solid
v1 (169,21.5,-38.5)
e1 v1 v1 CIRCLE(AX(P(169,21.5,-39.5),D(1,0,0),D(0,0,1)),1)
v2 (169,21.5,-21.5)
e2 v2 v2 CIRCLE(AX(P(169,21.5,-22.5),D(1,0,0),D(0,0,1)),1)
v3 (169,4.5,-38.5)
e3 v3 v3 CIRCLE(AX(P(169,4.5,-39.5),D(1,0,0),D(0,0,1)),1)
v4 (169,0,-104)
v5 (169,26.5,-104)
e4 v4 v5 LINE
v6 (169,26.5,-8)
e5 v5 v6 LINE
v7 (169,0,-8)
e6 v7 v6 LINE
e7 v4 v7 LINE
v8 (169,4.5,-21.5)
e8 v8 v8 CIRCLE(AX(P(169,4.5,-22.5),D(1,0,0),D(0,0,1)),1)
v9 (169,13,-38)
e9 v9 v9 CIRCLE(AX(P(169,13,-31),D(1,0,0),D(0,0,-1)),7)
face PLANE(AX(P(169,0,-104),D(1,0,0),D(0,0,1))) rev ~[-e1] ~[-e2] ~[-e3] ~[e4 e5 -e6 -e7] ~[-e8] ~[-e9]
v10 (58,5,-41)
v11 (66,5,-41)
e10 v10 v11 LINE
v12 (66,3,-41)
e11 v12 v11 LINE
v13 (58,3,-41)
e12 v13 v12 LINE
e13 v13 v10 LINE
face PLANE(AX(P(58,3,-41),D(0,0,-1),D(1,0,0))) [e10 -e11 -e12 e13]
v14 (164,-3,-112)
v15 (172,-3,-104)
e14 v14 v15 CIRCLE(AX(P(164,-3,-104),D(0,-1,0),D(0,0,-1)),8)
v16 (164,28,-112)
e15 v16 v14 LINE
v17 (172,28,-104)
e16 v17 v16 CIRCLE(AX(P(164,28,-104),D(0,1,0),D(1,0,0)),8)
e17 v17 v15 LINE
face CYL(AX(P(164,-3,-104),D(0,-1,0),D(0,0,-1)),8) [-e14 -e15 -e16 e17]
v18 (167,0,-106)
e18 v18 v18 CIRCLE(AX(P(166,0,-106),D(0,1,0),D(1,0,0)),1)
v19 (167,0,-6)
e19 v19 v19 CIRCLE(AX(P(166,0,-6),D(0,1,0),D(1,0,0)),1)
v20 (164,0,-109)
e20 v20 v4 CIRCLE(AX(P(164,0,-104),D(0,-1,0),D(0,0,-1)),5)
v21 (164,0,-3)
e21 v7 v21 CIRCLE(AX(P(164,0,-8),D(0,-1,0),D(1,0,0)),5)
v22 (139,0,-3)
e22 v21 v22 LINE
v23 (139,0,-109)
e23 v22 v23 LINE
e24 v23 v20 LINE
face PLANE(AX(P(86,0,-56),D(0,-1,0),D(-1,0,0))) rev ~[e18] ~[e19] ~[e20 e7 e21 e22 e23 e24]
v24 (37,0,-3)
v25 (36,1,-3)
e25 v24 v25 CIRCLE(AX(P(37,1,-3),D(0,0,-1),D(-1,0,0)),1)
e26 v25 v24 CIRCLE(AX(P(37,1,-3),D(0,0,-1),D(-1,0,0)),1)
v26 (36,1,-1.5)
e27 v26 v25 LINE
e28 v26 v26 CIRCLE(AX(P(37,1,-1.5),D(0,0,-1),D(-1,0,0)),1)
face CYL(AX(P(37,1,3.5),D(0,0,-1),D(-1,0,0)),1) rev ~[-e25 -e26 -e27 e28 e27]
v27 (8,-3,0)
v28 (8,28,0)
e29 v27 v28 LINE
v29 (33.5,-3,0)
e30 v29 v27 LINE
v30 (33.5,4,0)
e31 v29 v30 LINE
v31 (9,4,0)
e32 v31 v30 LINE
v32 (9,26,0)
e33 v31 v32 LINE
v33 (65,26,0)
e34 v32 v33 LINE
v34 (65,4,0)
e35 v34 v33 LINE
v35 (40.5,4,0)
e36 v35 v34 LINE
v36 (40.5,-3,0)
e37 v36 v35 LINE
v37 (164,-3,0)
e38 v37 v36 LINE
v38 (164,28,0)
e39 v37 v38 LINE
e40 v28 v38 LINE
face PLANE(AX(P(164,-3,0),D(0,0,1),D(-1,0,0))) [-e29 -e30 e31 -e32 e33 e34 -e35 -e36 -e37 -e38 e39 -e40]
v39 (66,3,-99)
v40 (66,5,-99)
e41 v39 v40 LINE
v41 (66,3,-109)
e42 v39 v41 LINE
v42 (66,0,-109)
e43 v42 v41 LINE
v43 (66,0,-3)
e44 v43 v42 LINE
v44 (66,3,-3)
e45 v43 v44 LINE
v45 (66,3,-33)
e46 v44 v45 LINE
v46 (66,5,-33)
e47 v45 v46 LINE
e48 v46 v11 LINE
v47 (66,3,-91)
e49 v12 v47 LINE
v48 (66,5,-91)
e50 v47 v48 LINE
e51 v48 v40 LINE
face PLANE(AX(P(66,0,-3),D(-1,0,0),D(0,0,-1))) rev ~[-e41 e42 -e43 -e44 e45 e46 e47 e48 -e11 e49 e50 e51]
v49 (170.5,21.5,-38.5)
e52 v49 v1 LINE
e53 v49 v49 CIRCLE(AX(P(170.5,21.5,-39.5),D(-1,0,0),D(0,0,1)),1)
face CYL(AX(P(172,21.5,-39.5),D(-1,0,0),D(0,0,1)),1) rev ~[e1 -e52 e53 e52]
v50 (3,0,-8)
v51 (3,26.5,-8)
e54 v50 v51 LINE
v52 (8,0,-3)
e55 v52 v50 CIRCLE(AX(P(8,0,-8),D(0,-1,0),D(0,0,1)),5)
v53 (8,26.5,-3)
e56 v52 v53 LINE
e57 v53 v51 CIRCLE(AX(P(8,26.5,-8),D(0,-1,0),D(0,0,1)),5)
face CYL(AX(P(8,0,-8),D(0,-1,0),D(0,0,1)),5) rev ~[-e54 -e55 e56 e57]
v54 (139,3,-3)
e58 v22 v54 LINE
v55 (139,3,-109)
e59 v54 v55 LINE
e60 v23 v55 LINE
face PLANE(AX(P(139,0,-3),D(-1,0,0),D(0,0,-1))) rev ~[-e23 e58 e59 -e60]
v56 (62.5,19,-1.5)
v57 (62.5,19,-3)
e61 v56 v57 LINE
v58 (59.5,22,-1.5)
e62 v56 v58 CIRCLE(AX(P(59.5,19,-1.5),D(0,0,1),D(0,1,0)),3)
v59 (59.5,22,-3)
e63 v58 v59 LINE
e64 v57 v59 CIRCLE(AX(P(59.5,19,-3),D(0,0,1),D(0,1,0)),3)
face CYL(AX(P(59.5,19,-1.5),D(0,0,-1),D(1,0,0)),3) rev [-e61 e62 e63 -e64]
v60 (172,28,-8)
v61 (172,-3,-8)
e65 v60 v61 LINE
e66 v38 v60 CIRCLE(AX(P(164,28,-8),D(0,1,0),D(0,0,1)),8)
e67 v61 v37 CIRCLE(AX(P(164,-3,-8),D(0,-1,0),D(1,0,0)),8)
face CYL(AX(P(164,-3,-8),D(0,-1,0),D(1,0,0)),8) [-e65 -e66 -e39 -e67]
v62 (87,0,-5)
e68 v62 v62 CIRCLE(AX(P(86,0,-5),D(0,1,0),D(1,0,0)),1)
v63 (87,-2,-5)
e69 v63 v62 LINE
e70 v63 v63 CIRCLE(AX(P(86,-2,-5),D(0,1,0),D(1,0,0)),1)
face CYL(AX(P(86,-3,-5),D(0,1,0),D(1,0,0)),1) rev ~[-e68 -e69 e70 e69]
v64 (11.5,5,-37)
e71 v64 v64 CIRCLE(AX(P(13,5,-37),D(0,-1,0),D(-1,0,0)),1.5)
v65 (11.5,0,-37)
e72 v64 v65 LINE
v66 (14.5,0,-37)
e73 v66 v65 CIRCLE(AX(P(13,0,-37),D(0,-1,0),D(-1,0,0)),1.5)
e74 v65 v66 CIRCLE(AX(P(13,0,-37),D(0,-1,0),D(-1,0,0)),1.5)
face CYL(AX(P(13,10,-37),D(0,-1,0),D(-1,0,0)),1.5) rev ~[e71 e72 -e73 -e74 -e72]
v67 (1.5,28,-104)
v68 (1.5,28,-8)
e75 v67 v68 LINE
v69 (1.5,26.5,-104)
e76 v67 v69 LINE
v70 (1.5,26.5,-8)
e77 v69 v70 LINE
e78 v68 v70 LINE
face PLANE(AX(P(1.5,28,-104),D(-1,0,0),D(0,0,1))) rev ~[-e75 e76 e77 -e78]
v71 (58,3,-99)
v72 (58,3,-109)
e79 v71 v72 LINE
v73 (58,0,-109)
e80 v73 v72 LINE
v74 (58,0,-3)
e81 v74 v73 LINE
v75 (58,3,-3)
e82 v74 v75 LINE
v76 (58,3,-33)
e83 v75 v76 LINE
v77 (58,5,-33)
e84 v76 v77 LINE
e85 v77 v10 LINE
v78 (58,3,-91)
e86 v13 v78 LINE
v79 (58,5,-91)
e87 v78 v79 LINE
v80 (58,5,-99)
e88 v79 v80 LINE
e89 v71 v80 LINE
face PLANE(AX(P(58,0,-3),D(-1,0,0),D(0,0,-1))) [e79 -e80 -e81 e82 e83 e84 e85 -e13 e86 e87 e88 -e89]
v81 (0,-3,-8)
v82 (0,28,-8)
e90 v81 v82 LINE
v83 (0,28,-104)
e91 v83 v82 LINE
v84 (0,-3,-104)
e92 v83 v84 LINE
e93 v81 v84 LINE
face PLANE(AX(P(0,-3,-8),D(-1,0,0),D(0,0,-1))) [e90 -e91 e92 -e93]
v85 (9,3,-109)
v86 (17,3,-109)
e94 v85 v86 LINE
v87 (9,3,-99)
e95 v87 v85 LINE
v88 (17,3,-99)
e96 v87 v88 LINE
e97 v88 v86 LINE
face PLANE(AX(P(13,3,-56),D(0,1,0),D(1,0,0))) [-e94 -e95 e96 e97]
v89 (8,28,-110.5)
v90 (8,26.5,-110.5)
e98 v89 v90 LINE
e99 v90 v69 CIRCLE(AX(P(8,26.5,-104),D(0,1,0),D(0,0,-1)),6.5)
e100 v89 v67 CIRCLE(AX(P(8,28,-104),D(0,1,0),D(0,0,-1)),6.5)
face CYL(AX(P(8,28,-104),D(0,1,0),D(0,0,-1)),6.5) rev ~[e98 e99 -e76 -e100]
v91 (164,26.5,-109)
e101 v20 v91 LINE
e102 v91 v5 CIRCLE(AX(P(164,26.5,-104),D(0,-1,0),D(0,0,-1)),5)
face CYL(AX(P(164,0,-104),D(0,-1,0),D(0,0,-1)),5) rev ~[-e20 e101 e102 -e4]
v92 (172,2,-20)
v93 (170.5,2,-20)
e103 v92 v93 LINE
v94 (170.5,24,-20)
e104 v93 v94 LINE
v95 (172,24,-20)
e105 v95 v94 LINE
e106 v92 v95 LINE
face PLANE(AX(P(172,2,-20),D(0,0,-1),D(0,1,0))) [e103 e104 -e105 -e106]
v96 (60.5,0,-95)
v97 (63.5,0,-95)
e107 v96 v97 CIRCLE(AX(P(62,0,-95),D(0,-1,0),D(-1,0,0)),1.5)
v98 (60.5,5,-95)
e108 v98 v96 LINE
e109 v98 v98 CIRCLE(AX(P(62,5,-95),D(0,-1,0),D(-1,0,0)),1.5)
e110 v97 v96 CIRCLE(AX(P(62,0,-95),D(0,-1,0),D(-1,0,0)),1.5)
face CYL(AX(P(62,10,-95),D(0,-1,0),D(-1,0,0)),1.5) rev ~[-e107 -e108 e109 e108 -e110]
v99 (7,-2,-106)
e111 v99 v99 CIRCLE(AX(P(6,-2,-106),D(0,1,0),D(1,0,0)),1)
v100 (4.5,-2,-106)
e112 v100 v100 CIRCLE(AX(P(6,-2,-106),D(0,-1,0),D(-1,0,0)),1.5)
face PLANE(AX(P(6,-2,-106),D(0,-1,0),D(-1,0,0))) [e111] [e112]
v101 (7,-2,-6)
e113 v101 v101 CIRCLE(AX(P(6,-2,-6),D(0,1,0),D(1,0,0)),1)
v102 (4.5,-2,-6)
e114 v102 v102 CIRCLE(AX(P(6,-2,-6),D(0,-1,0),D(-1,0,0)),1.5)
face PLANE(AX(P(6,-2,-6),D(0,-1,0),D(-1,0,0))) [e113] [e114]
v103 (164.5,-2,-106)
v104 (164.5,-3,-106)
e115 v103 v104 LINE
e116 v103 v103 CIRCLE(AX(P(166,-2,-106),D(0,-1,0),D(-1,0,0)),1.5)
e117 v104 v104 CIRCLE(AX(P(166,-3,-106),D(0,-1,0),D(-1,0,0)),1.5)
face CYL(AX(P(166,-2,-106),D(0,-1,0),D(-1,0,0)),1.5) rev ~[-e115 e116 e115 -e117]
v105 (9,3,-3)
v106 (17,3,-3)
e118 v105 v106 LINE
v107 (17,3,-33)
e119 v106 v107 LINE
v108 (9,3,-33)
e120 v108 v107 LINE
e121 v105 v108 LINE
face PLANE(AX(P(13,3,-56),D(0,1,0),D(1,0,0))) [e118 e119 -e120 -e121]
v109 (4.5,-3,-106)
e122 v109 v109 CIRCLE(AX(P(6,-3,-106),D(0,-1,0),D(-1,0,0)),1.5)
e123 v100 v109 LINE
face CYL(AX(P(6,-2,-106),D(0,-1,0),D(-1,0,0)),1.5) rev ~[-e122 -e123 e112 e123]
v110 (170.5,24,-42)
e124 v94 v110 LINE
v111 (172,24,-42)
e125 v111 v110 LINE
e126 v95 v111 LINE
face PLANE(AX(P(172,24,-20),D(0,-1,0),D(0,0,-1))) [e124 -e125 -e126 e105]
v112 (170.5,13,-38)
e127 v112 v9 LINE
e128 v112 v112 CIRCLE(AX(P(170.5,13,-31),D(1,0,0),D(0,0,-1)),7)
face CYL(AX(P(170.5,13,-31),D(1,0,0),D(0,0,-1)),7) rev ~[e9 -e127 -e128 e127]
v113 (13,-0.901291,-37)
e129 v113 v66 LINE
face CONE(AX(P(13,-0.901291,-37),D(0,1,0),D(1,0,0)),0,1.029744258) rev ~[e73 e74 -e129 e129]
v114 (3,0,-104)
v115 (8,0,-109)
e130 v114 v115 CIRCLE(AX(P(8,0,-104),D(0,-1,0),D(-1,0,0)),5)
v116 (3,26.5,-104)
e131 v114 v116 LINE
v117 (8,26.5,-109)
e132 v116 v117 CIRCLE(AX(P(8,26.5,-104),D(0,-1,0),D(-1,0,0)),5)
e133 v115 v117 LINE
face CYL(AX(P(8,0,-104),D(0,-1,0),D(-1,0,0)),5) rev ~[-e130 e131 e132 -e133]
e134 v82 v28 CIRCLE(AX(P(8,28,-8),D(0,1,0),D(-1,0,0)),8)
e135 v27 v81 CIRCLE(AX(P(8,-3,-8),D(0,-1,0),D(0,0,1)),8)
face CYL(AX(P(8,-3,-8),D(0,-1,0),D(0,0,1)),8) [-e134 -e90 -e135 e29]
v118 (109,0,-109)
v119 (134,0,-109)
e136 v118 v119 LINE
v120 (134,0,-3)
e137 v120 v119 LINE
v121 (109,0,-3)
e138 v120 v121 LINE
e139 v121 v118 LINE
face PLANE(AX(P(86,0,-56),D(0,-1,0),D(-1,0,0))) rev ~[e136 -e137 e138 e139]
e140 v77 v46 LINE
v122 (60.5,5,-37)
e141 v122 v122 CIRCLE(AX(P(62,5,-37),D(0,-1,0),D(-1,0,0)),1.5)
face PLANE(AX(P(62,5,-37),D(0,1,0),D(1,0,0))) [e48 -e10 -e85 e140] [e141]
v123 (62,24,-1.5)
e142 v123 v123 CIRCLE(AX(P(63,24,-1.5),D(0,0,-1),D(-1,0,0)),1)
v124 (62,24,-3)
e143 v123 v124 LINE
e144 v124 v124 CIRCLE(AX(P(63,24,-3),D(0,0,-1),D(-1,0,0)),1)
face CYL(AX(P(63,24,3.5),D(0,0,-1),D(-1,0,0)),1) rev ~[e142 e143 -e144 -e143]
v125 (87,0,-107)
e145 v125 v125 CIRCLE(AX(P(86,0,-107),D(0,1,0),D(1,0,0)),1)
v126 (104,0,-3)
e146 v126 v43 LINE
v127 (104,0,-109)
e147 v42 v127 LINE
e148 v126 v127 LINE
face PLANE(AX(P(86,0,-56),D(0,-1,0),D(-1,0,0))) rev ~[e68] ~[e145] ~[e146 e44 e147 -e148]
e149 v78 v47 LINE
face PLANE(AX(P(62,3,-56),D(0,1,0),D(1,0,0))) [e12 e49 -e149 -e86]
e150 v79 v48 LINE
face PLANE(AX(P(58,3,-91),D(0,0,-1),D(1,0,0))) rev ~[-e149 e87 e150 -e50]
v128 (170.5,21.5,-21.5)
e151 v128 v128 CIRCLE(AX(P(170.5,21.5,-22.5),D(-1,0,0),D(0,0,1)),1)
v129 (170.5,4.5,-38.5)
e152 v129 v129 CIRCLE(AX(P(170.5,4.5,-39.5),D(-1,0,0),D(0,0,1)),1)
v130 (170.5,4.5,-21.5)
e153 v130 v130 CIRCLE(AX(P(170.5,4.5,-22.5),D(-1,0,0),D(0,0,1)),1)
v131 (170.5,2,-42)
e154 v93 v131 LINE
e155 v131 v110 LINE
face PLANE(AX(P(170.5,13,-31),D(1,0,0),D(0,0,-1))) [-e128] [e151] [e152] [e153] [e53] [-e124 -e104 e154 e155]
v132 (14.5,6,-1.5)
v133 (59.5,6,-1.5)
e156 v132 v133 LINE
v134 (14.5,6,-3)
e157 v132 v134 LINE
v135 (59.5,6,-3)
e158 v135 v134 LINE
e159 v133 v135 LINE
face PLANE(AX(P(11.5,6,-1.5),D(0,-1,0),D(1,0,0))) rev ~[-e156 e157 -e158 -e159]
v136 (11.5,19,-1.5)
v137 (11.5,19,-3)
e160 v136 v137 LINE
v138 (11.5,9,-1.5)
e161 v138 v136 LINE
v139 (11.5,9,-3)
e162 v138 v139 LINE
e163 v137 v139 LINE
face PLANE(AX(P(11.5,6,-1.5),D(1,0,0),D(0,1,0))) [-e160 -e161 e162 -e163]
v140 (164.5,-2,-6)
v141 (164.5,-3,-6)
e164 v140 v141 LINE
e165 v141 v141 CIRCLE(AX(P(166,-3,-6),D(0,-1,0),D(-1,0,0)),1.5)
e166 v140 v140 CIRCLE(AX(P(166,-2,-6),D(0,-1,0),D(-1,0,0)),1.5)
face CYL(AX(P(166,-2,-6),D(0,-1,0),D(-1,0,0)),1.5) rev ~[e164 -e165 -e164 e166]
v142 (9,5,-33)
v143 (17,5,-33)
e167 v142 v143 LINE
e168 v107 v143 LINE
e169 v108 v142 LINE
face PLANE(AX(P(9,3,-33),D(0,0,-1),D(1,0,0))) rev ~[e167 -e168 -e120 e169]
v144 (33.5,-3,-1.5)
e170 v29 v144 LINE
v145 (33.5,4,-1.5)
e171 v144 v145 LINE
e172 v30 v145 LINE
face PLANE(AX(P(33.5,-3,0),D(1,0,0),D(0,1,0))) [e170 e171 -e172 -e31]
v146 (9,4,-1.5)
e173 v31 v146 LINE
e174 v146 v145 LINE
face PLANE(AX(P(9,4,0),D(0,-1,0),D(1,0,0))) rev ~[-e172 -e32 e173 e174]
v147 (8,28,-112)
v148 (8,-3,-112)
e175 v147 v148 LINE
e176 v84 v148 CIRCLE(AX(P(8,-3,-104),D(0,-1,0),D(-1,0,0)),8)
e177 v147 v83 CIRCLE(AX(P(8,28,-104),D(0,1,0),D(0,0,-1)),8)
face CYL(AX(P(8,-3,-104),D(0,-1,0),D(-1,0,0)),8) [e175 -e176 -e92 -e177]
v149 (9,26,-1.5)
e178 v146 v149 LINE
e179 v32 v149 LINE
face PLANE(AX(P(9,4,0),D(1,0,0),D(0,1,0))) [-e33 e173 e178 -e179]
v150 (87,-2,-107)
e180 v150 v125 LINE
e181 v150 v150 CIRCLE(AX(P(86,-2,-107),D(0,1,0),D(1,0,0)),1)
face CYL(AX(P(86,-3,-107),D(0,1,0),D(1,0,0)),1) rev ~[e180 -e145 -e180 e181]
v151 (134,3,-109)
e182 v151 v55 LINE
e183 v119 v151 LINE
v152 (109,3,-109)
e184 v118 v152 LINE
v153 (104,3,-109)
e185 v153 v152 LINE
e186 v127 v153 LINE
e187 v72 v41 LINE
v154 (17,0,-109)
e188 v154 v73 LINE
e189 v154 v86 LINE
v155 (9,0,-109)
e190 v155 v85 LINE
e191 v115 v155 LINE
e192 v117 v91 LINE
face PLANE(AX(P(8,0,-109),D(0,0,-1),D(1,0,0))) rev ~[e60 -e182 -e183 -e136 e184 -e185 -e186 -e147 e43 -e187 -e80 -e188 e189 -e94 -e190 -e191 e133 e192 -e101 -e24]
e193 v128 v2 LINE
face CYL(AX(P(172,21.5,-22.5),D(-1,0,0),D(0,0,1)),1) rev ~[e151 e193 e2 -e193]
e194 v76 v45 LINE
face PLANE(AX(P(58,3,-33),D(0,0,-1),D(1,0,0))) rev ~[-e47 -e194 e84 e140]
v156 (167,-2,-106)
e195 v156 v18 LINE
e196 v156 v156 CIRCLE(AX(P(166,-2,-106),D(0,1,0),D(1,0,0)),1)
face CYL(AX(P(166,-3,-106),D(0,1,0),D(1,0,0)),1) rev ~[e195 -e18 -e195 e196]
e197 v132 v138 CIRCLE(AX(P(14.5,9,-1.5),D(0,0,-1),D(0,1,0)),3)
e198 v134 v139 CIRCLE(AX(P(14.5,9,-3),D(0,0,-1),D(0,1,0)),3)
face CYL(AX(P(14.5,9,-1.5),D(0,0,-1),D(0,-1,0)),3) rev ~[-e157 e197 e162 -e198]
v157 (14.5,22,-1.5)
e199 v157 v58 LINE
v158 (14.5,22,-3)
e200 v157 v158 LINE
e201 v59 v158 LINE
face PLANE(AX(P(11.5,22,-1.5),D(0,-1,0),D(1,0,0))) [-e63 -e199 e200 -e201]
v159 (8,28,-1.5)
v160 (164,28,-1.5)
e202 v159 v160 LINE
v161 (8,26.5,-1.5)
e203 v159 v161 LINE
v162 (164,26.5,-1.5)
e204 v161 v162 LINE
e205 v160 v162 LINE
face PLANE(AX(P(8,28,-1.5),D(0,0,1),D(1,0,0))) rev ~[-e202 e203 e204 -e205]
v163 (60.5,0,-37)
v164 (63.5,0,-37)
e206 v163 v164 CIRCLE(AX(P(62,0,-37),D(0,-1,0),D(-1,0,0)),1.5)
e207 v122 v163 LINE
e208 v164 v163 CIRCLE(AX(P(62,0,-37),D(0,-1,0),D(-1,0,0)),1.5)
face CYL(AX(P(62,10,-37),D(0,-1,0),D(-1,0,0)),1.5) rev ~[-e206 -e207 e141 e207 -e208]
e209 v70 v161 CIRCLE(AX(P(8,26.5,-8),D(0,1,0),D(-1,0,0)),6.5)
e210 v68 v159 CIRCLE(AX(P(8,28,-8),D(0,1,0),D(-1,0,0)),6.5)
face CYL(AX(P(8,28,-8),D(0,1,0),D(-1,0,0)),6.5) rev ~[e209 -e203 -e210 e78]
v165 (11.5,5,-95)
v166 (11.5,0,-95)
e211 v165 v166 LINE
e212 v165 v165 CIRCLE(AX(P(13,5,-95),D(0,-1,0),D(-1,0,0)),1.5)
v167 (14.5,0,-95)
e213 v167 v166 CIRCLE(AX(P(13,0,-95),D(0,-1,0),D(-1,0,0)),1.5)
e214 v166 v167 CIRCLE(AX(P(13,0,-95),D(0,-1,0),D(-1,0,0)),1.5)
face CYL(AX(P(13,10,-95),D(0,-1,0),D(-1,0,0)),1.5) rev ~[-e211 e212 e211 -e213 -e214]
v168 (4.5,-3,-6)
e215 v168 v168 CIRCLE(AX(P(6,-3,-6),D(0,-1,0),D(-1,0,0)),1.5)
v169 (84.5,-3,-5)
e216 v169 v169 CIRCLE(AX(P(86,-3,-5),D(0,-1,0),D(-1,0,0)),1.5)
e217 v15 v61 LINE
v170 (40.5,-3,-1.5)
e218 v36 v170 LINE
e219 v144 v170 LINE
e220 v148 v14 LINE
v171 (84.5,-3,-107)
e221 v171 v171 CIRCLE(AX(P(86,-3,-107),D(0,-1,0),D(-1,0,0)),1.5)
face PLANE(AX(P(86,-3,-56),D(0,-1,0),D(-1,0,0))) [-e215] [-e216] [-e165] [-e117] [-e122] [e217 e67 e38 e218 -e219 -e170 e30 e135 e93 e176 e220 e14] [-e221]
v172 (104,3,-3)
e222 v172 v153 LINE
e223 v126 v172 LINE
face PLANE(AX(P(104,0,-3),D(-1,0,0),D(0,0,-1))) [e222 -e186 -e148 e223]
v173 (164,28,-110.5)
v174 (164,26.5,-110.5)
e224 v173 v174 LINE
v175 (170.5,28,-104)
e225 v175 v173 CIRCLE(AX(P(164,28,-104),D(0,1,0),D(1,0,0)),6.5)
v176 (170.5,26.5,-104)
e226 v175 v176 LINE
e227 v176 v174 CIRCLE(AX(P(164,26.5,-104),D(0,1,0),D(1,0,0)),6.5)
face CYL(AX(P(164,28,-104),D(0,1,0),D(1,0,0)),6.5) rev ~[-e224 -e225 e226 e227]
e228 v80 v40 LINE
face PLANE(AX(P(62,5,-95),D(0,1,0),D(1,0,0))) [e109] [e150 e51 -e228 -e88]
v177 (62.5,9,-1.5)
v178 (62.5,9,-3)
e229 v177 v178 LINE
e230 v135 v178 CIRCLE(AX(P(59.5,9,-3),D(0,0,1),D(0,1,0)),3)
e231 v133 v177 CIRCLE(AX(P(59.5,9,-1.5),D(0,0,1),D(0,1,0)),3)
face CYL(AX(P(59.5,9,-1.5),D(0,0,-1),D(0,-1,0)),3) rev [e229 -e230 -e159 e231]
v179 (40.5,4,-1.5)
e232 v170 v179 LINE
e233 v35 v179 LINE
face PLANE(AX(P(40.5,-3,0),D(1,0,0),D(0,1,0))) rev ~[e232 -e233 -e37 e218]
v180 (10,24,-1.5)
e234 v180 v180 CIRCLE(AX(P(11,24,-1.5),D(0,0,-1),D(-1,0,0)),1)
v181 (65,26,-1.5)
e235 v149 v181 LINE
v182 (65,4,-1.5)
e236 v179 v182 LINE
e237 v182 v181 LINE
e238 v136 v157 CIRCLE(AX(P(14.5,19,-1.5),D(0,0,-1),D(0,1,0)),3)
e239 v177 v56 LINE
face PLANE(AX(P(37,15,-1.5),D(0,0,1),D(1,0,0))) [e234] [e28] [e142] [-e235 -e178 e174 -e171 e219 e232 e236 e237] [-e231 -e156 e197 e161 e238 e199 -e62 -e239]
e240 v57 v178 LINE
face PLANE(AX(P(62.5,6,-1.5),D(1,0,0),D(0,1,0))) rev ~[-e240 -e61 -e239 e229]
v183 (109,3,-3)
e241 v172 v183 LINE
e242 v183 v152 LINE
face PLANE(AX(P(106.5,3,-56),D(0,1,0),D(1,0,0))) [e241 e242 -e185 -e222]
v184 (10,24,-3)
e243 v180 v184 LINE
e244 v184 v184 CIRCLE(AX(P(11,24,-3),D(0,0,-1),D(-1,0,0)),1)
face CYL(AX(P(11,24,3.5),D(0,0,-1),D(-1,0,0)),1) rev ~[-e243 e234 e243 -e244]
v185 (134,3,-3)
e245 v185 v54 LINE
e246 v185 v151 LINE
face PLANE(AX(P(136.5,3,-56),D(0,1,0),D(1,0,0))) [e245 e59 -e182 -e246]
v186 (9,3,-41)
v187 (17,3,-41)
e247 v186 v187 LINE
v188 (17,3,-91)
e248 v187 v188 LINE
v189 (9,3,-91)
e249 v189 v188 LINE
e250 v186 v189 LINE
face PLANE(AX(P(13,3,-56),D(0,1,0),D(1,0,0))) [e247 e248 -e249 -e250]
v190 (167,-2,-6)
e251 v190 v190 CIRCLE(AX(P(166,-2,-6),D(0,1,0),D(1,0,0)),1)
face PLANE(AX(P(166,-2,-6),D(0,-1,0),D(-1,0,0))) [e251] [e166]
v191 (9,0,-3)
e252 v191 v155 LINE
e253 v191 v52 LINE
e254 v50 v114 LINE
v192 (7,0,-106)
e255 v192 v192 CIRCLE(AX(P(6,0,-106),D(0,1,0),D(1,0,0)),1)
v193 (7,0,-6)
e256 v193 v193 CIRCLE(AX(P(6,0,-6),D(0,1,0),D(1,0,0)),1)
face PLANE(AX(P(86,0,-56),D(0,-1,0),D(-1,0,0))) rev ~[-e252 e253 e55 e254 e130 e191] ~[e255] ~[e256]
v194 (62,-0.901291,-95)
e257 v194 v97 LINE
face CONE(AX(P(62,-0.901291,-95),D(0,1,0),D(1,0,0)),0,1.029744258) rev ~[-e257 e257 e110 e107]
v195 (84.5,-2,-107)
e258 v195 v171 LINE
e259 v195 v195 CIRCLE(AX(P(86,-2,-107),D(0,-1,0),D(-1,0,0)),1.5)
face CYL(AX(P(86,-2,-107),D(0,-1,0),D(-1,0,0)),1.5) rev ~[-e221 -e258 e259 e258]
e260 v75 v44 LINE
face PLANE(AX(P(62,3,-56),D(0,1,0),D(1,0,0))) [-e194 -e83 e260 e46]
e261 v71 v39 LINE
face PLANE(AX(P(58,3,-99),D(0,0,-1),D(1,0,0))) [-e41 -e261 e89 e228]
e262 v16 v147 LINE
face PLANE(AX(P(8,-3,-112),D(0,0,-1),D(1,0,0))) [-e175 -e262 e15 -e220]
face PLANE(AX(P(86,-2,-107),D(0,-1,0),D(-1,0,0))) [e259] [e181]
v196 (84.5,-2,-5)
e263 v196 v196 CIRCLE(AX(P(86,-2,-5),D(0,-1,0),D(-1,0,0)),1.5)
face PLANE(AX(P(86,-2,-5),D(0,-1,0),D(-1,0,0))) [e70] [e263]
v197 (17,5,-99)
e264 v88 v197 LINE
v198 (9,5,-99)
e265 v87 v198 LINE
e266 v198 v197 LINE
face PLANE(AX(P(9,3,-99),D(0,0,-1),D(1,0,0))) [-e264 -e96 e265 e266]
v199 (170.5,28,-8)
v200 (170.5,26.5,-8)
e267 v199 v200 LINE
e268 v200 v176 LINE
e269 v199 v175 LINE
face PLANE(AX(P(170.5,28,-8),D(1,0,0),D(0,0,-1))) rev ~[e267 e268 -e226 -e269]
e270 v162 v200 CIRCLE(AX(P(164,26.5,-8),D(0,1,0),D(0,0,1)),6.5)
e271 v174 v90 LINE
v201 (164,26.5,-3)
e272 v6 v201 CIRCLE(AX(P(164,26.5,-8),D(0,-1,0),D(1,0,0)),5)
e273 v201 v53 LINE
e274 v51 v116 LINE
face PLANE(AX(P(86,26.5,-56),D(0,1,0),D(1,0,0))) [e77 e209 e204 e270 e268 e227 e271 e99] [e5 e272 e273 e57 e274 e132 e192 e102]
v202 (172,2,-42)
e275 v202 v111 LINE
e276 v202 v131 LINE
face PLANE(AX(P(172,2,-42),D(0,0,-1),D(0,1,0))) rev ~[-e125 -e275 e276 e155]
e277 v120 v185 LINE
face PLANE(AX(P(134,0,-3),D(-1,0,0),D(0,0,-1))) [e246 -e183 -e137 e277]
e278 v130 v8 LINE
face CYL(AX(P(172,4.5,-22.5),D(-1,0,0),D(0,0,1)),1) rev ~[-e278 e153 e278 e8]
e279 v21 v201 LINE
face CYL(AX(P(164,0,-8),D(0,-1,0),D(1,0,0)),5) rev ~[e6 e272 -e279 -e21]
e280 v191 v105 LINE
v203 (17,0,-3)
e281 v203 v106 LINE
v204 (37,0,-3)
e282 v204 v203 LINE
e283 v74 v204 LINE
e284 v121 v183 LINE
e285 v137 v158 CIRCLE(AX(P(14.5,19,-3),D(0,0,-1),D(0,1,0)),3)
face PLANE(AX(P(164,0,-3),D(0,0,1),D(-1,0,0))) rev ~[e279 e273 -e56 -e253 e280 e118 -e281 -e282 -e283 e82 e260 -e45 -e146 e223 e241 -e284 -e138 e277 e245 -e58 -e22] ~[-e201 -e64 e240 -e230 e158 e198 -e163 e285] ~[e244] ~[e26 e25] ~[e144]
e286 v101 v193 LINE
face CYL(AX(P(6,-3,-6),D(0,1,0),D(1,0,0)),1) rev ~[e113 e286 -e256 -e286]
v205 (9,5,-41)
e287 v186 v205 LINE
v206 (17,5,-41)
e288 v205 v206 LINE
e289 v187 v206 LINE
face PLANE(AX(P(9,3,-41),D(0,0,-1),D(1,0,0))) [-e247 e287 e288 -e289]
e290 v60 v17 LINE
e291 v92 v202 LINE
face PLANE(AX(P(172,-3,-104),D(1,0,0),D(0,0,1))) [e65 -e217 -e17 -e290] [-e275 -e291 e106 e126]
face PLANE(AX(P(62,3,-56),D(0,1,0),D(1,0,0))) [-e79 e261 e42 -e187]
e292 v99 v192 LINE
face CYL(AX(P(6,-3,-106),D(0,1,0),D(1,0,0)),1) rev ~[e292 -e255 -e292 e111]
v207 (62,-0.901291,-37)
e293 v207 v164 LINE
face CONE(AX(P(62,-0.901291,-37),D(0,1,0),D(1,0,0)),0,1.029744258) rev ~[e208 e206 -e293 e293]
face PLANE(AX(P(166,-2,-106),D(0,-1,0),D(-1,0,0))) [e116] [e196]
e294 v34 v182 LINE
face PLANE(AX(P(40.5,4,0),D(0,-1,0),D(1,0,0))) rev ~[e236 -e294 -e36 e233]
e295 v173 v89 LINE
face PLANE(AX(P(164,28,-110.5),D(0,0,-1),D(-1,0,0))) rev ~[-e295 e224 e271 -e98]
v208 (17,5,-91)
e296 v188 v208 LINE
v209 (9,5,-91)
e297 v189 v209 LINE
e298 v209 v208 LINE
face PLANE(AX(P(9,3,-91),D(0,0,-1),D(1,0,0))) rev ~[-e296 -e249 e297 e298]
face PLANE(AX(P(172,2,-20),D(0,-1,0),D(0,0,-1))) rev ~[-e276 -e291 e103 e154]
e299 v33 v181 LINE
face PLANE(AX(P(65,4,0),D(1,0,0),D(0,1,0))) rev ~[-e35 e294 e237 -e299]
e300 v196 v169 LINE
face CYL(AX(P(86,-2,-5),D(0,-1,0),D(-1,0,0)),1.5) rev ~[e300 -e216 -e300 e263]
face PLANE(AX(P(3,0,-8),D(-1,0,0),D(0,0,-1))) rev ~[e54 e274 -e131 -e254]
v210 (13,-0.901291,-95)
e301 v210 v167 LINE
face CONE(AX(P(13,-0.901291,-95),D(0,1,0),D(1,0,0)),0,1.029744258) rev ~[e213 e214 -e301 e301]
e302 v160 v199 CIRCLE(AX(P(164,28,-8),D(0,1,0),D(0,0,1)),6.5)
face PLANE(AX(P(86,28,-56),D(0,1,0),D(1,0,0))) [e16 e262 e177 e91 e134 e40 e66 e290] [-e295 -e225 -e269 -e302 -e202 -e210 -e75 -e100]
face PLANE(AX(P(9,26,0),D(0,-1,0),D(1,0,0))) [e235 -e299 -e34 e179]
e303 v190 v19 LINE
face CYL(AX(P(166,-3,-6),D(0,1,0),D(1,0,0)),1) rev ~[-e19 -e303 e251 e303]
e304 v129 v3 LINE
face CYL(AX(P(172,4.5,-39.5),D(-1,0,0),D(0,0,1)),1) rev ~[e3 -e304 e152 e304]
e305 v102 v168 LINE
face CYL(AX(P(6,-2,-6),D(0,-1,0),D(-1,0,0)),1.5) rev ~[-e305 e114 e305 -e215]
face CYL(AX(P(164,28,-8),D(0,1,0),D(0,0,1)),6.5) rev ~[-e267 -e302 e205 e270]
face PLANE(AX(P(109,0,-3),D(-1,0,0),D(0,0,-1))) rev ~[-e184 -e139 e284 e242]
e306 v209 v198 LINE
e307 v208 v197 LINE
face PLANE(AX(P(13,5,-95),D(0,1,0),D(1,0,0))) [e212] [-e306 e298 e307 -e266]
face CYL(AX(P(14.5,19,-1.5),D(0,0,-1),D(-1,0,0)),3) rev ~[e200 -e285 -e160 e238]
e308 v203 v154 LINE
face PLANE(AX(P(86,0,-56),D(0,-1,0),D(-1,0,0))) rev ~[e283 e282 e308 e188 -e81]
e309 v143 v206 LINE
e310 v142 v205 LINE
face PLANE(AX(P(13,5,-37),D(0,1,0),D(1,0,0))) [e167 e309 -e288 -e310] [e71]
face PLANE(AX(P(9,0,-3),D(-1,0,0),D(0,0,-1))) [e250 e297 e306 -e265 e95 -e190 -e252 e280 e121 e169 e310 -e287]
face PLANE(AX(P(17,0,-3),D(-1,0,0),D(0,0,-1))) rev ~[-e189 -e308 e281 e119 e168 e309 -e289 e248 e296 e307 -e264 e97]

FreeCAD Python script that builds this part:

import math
import FreeCAD as App
import Part
import Sketcher
Q = App.Units.Quantity


def edges_at(feature, points):
    """Names of the edges that pass closest to the given points."""
    edges = feature.Shape.Edges
    near = lambda p: min(range(len(edges)), key=lambda i: edges[i].distToShape(Part.Vertex(*p))[0])
    return sorted({f"Edge{near(p) + 1}" for p in points})


def add_polygon(sketch, points):
    """Adds a closed chain of lines whose ends are joined by coincident constraints."""
    first, n = sketch.GeometryCount, len(points)
    for a, b in zip(points, points[1:] + points[:1]):
        sketch.addGeometry(Part.LineSegment(App.Vector(*a, 0), App.Vector(*b, 0)), False)
    for i in range(n):
        sketch.addConstraint(Sketcher.Constraint("Coincident", first + i, 2, first + (i + 1) % n, 1))

doc = App.newDocument("Part")
body = doc.addObject("PartDesign::Body", "Body")

sketch1 = body.newObject("Sketcher::SketchObject", "Sketch")
sketch1.AttachmentSupport = (doc.getObject("XZ_Plane"), [""])
sketch1.MapMode = "FlatFace"
sketch1.addGeometry([
    Part.LineSegment(App.Vector(8, 0, 0), App.Vector(164, 0, 0)),
    Part.ArcOfCircle(Part.Circle(App.Vector(164, -8, 0), App.Vector(0, 0, 1), 8), math.radians(0), math.radians(90)),
    Part.LineSegment(App.Vector(172, -8, 0), App.Vector(172, -104, 0)),
    Part.ArcOfCircle(Part.Circle(App.Vector(164, -104, 0), App.Vector(0, 0, 1), 8), math.radians(-90), math.radians(0)),
    Part.LineSegment(App.Vector(164, -112, 0), App.Vector(8, -112, 0)),
    Part.ArcOfCircle(Part.Circle(App.Vector(8, -104, 0), App.Vector(0, 0, 1), 8), math.radians(-180), math.radians(-90)),
    Part.LineSegment(App.Vector(0, -104, 0), App.Vector(0, -8, 0)),
    Part.ArcOfCircle(Part.Circle(App.Vector(8, -8, 0), App.Vector(0, 0, 1), 8), math.radians(90), math.radians(180)),
    Part.ArcOfCircle(Part.Circle(App.Vector(8, -104, 0), App.Vector(0, 0, 1), 5), math.radians(180), math.radians(270)),
    Part.LineSegment(App.Vector(8, -109, 0), App.Vector(164, -109, 0)),
    Part.ArcOfCircle(Part.Circle(App.Vector(164, -104, 0), App.Vector(0, 0, 1), 5), math.radians(-90), math.radians(0)),
    Part.LineSegment(App.Vector(169, -104, 0), App.Vector(169, -8, 0)),
    Part.ArcOfCircle(Part.Circle(App.Vector(164, -8, 0), App.Vector(0, 0, 1), 5), math.radians(0), math.radians(90)),
    Part.LineSegment(App.Vector(164, -3, 0), App.Vector(8, -3, 0)),
    Part.ArcOfCircle(Part.Circle(App.Vector(8, -8, 0), App.Vector(0, 0, 1), 5), math.radians(90), math.radians(180)),
    Part.LineSegment(App.Vector(3, -8, 0), App.Vector(3, -104, 0)),
], False)
sketch1.addConstraint([
    Sketcher.Constraint("Tangent", 0, 2, 1, 2),
    Sketcher.Constraint("Tangent", 1, 1, 2, 1),
    Sketcher.Constraint("Tangent", 2, 2, 3, 2),
    Sketcher.Constraint("Tangent", 3, 1, 4, 1),
    Sketcher.Constraint("Tangent", 4, 2, 5, 2),
    Sketcher.Constraint("Tangent", 5, 1, 6, 1),
    Sketcher.Constraint("Tangent", 6, 2, 7, 2),
    Sketcher.Constraint("Tangent", 7, 1, 0, 1),
    Sketcher.Constraint("Tangent", 8, 2, 9, 1),
    Sketcher.Constraint("Tangent", 9, 2, 10, 1),
    Sketcher.Constraint("Tangent", 10, 2, 11, 1),
    Sketcher.Constraint("Tangent", 11, 2, 12, 1),
    Sketcher.Constraint("Tangent", 12, 2, 13, 1),
    Sketcher.Constraint("Tangent", 13, 2, 14, 1),
    Sketcher.Constraint("Tangent", 14, 2, 15, 1),
    Sketcher.Constraint("Tangent", 15, 2, 8, 1),
    Sketcher.Constraint("Horizontal", 0),
    Sketcher.Constraint("Vertical", 2),
    Sketcher.Constraint("Horizontal", 4),
    Sketcher.Constraint("Vertical", 6),
    Sketcher.Constraint("Horizontal", 9),
    Sketcher.Constraint("Vertical", 11),
    Sketcher.Constraint("Horizontal", 13),
    Sketcher.Constraint("Vertical", 15),
    Sketcher.Constraint("Coincident", 8, 3, 5, 3),
    Sketcher.Constraint("Coincident", 10, 3, 3, 3),
    Sketcher.Constraint("Coincident", 12, 3, 1, 3),
    Sketcher.Constraint("Equal", 1, 3),
    Sketcher.Constraint("Equal", 3, 5),
    Sketcher.Constraint("Equal", 5, 7),
    Sketcher.Constraint("Equal", 12, 14),
    Sketcher.Constraint("PointOnObject", 0, 2, -1),
    Sketcher.Constraint("PointOnObject", 5, 1, -2),
    Sketcher.Constraint("Radius", 1, Q("8 mm")),
    Sketcher.Constraint("Radius", 8, Q("5 mm")),
    Sketcher.Constraint("DistanceX", 0, 1, 0, 2, Q("156 mm")),
    Sketcher.Constraint("DistanceY", 2, 2, 2, 1, Q("96 mm")),
])
pad1 = body.newObject("PartDesign::Pad", "Pad")
pad1.Profile = sketch1
pad1.Length = 28
pad1.Reversed = True
body2 = doc.addObject("PartDesign::Body", "Body001")

sketch2 = body2.newObject("Sketcher::SketchObject", "Sketch001")
sketch2.AttachmentSupport = (doc.getObject("XZ_Plane001"), [""])
sketch2.MapMode = "FlatFace"
add_polygon(sketch2, [(9, -109), (9, -3), (17, -3), (17, -109)])
sketch2.addConstraint([
    Sketcher.Constraint("Vertical", 0),
    Sketcher.Constraint("Horizontal", 1),
    Sketcher.Constraint("Vertical", 2),
    Sketcher.Constraint("Horizontal", 3),
    Sketcher.Constraint("DistanceX", 1, 1, 1, 2, Q("8 mm")),
    Sketcher.Constraint("DistanceY", 0, 1, 0, 2, Q("106 mm")),
    Sketcher.Constraint("DistanceX", -1, 1, 0, 2, Q("9 mm")),
    Sketcher.Constraint("DistanceY", 0, 2, -1, 1, Q("3 mm")),
])
pad2 = body2.newObject("PartDesign::Pad", "Pad001")
pad2.Profile = sketch2
pad2.Length = 3
pad2.Reversed = True
body3 = doc.addObject("PartDesign::Body", "Body002")

sketch3 = body3.newObject("Sketcher::SketchObject", "Sketch002")
sketch3.AttachmentSupport = (doc.getObject("XZ_Plane002"), [""])
sketch3.MapMode = "FlatFace"
add_polygon(sketch3, [(58, -109), (58, -3), (66, -3), (66, -109)])
sketch3.addConstraint([
    Sketcher.Constraint("Vertical", 0),
    Sketcher.Constraint("Horizontal", 1),
    Sketcher.Constraint("Vertical", 2),
    Sketcher.Constraint("Horizontal", 3),
    Sketcher.Constraint("DistanceX", 1, 1, 1, 2, Q("8 mm")),
    Sketcher.Constraint("DistanceY", 0, 1, 0, 2, Q("106 mm")),
    Sketcher.Constraint("DistanceX", -1, 1, 0, 2, Q("58 mm")),
    Sketcher.Constraint("DistanceY", 0, 2, -1, 1, Q("3 mm")),
])
pad3 = body3.newObject("PartDesign::Pad", "Pad002")
pad3.Profile = sketch3
pad3.Length = 3
pad3.Reversed = True
doc.recompute()

boolean = body.newObject("PartDesign::Boolean", "Boolean")
boolean.Type = "Fuse"
boolean.addObjects([body2])
doc.recompute()

boolean2 = body.newObject("PartDesign::Boolean", "Boolean001")
boolean2.Type = "Fuse"
boolean2.addObjects([body3])

sketch4 = body.newObject("Sketcher::SketchObject", "Sketch003")
sketch4.AttachmentSupport = (doc.getObject("XZ_Plane"), [""])
sketch4.MapMode = "FlatFace"
sketch4.AttachmentOffset = App.Placement(App.Vector(0, 0, 3), App.Rotation())
sketch4.addGeometry([
    Part.LineSegment(App.Vector(0, -104, 0), App.Vector(0, -8, 0)),
    Part.ArcOfCircle(Part.Circle(App.Vector(8, -8, 0), App.Vector(0, 0, 1), 8), math.radians(90), math.radians(180)),
    Part.LineSegment(App.Vector(8, 0, 0), App.Vector(164, 0, 0)),
    Part.ArcOfCircle(Part.Circle(App.Vector(164, -8, 0), App.Vector(0, 0, 1), 8), math.radians(0), math.radians(90)),
    Part.LineSegment(App.Vector(172, -8, 0), App.Vector(172, -104, 0)),
    Part.ArcOfCircle(Part.Circle(App.Vector(164, -104, 0), App.Vector(0, 0, 1), 8), math.radians(-90), math.radians(0)),
    Part.LineSegment(App.Vector(164, -112, 0), App.Vector(8, -112, 0)),
    Part.ArcOfCircle(Part.Circle(App.Vector(8, -104, 0), App.Vector(0, 0, 1), 8), math.radians(-180), math.radians(-90)),
], False)
sketch4.addConstraint([
    Sketcher.Constraint("Tangent", 0, 2, 1, 2),
    Sketcher.Constraint("Tangent", 1, 1, 2, 1),
    Sketcher.Constraint("Tangent", 2, 2, 3, 2),
    Sketcher.Constraint("Tangent", 3, 1, 4, 1),
    Sketcher.Constraint("Tangent", 4, 2, 5, 2),
    Sketcher.Constraint("Tangent", 5, 1, 6, 1),
    Sketcher.Constraint("Tangent", 6, 2, 7, 2),
    Sketcher.Constraint("Tangent", 7, 1, 0, 1),
    Sketcher.Constraint("Vertical", 0),
    Sketcher.Constraint("Horizontal", 2),
    Sketcher.Constraint("Vertical", 4),
    Sketcher.Constraint("Horizontal", 6),
    Sketcher.Constraint("Equal", 1, 3),
    Sketcher.Constraint("Equal", 3, 5),
    Sketcher.Constraint("Equal", 5, 7),
    Sketcher.Constraint("PointOnObject", 0, 2, -2),
    Sketcher.Constraint("PointOnObject", 1, 1, -1),
    Sketcher.Constraint("Radius", 1, Q("8 mm")),
    Sketcher.Constraint("DistanceX", 2, 1, 2, 2, Q("156 mm")),
    Sketcher.Constraint("DistanceY", 0, 1, 0, 2, Q("96 mm")),
])
pad4 = body.newObject("PartDesign::Pad", "Pad003")
pad4.Profile = sketch4
pad4.Length = 3
pad4.Reversed = True

sketch5 = body.newObject("Sketcher::SketchObject", "Sketch004")
sketch5.AttachmentSupport = (doc.getObject("XZ_Plane"), [""])
sketch5.MapMode = "FlatFace"
sketch5.AttachmentOffset = App.Placement(App.Vector(0, 0, 3), App.Rotation())
sketch5.addGeometry([
    Part.Circle(App.Vector(6, -6, 0), App.Vector(0, 0, 1), 1),
    Part.Circle(App.Vector(6, -106, 0), App.Vector(0, 0, 1), 1),
    Part.Circle(App.Vector(166, -106, 0), App.Vector(0, 0, 1), 1),
    Part.Circle(App.Vector(166, -6, 0), App.Vector(0, 0, 1), 1),
    Part.Circle(App.Vector(86, -5, 0), App.Vector(0, 0, 1), 1),
    Part.Circle(App.Vector(86, -107, 0), App.Vector(0, 0, 1), 1),
], False)
sketch5.addConstraint([
    Sketcher.Constraint("Equal", 0, 1),
    Sketcher.Constraint("Equal", 1, 2),
    Sketcher.Constraint("Equal", 2, 3),
    Sketcher.Constraint("Equal", 3, 4),
    Sketcher.Constraint("Equal", 4, 5),
    Sketcher.Constraint("Horizontal", 1, 3, 2, 3),
    Sketcher.Constraint("Horizontal", 0, 3, 3, 3),
    Sketcher.Constraint("Vertical", 0, 3, 1, 3),
    Sketcher.Constraint("Vertical", 2, 3, 3, 3),
    Sketcher.Constraint("Vertical", 4, 3, 5, 3),
    Sketcher.Constraint("Diameter", 0, Q("2 mm")),
    Sketcher.Constraint("DistanceX", -1, 1, 0, 3, Q("6 mm")),
    Sketcher.Constraint("DistanceY", 0, 3, -1, 1, Q("6 mm")),
    Sketcher.Constraint("DistanceY", 1, 3, -1, 1, Q("106 mm")),
    Sketcher.Constraint("DistanceX", -1, 1, 2, 3, Q("166 mm")),
    Sketcher.Constraint("DistanceX", -1, 1, 4, 3, Q("86 mm")),
    Sketcher.Constraint("DistanceY", 4, 3, -1, 1, Q("5 mm")),
    Sketcher.Constraint("DistanceY", 5, 3, -1, 1, Q("107 mm")),
])
doc.recompute()
hole = body.newObject("PartDesign::Hole", "Hole")
hole.Profile = sketch5
hole.ThreadType = "None"
hole.Diameter = 2
hole.DepthType = "ThroughAll"
hole.HoleCutType = "Counterbore"
hole.HoleCutDiameter = 3
hole.HoleCutDepth = 1

sketch6 = body.newObject("Sketcher::SketchObject", "Sketch005")
sketch6.AttachmentSupport = (doc.getObject("XY_Plane"), [""])
sketch6.MapMode = "FlatFace"
add_polygon(sketch6, [(9, 26), (9, 4), (34, 4), (34, -3), (40, -3), (40, 4), (65, 4), (65, 26)])
sketch6.addConstraint([
    Sketcher.Constraint("Vertical", 0),
    Sketcher.Constraint("Horizontal", 1),
    Sketcher.Constraint("Vertical", 2),
    Sketcher.Constraint("Horizontal", 3),
    Sketcher.Constraint("Vertical", 4),
    Sketcher.Constraint("Horizontal", 5),
    Sketcher.Constraint("Vertical", 6),
    Sketcher.Constraint("Horizontal", 7),
    Sketcher.Constraint("Horizontal", 1, 2, 4, 2),
    Sketcher.Constraint("Equal", 1, 5),
    Sketcher.Constraint("Equal", 3, 2),
    Sketcher.Constraint("DistanceX", 3, 1, 3, 2, Q("7 mm")),
    Sketcher.Constraint("DistanceX", 7, 2, 7, 1, Q("56 mm")),
    Sketcher.Constraint("DistanceY", 0, 2, 0, 1, Q("22 mm")),
    Sketcher.Constraint("DistanceX", -1, 1, 0, 2, Q("9 mm")),
    Sketcher.Constraint("DistanceY", -1, 1, 0, 2, Q("4 mm")),
])
pocket1 = body.newObject("PartDesign::Pocket", "Pocket")
pocket1.Profile = sketch6
pocket1.Length = 1.5

sketch7 = body.newObject("Sketcher::SketchObject", "Sketch006")
sketch7.AttachmentSupport = (doc.getObject("XY_Plane"), [""])
sketch7.MapMode = "FlatFace"
sketch7.AttachmentOffset = App.Placement(App.Vector(0, 0, -1.5), App.Rotation())
add_polygon(sketch7, [(12, 22), (12, 6), (62, 6), (62, 22)])
sketch7.addConstraint([
    Sketcher.Constraint("Vertical", 0),
    Sketcher.Constraint("Horizontal", 1),
    Sketcher.Constraint("Vertical", 2),
    Sketcher.Constraint("Horizontal", 3),
    Sketcher.Constraint("DistanceX", 1, 1, 1, 2, Q("51 mm")),
    Sketcher.Constraint("DistanceY", 0, 2, 0, 1, Q("16 mm")),
    Sketcher.Constraint("DistanceY", -1, 1, 0, 2, Q("6 mm")),
    Sketcher.Constraint("DistanceX", -1, 1, 0, 2, Q("11.5 mm")),
])
pocket2 = body.newObject("PartDesign::Pocket", "Pocket001")
pocket2.Profile = sketch7
pocket2.Type = "UpToFirst"

sketch8 = body.newObject("Sketcher::SketchObject", "Sketch007")
sketch8.AttachmentSupport = (doc.getObject("XZ_Plane"), [""])
sketch8.MapMode = "FlatFace"
sketch8.AttachmentOffset = App.Placement(App.Vector(0, 0, -3), App.Rotation())
add_polygon(sketch8, [(9, -99), (9, -91), (17, -91), (17, -99)])
add_polygon(sketch8, [(58, -99), (58, -91), (66, -91), (66, -99)])
add_polygon(sketch8, [(9, -41), (9, -33), (17, -33), (17, -41)])
add_polygon(sketch8, [(58, -41), (58, -33), (66, -33), (66, -41)])
sketch8.addConstraint([
    Sketcher.Constraint("Vertical", 0),
    Sketcher.Constraint("Horizontal", 1),
    Sketcher.Constraint("Vertical", 2),
    Sketcher.Constraint("Horizontal", 3),
    Sketcher.Constraint("Vertical", 4),
    Sketcher.Constraint("Horizontal", 5),
    Sketcher.Constraint("Vertical", 6),
    Sketcher.Constraint("Horizontal", 7),
    Sketcher.Constraint("Vertical", 8),
    Sketcher.Constraint("Horizontal", 9),
    Sketcher.Constraint("Vertical", 10),
    Sketcher.Constraint("Horizontal", 11),
    Sketcher.Constraint("Vertical", 12),
    Sketcher.Constraint("Horizontal", 13),
    Sketcher.Constraint("Vertical", 14),
    Sketcher.Constraint("Horizontal", 15),
    Sketcher.Constraint("Horizontal", 1, 2, 4, 2),
    Sketcher.Constraint("Horizontal", 3, 2, 6, 2),
    Sketcher.Constraint("Horizontal", 9, 2, 12, 2),
    Sketcher.Constraint("Horizontal", 11, 2, 14, 2),
    Sketcher.Constraint("Vertical", 3, 2, 8, 2),
    Sketcher.Constraint("Vertical", 2, 2, 9, 2),
    Sketcher.Constraint("Vertical", 7, 2, 12, 2),
    Sketcher.Constraint("Vertical", 6, 2, 13, 2),
    Sketcher.Constraint("Equal", 3, 5),
    Sketcher.Constraint("Equal", 15, 0),
    Sketcher.Constraint("Equal", 6, 8),
    Sketcher.Constraint("DistanceX", 1, 1, 1, 2, Q("8 mm")),
    Sketcher.Constraint("DistanceX", -1, 1, 0, 2, Q("9 mm")),
    Sketcher.Constraint("DistanceY", 0, 2, -1, 1, Q("91 mm")),
    Sketcher.Constraint("DistanceX", -1, 1, 4, 2, Q("58 mm")),
    Sketcher.Constraint("DistanceY", 8, 2, -1, 1, Q("33 mm")),
])
pad5 = body.newObject("PartDesign::Pad", "Pad004")
pad5.Profile = sketch8
pad5.Length = 2
pad5.Reversed = True

sketch9 = body.newObject("Sketcher::SketchObject", "Sketch008")
sketch9.AttachmentSupport = (doc.getObject("XZ_Plane"), [""])
sketch9.MapMode = "FlatFace"
sketch9.AttachmentOffset = App.Placement(App.Vector(0, 0, -5), App.Rotation())
sketch9.addGeometry([
    Part.Circle(App.Vector(13, -95, 0), App.Vector(0, 0, 1), 1.5),
    Part.Circle(App.Vector(62, -95, 0), App.Vector(0, 0, 1), 1.5),
    Part.Circle(App.Vector(62, -37, 0), App.Vector(0, 0, 1), 1.5),
    Part.Circle(App.Vector(13, -37, 0), App.Vector(0, 0, 1), 1.5),
], False)
sketch9.addConstraint([
    Sketcher.Constraint("Equal", 0, 1),
    Sketcher.Constraint("Equal", 1, 2),
    Sketcher.Constraint("Equal", 2, 3),
    Sketcher.Constraint("Horizontal", 0, 3, 1, 3),
    Sketcher.Constraint("Horizontal", 2, 3, 3, 3),
    Sketcher.Constraint("Vertical", 1, 3, 2, 3),
    Sketcher.Constraint("Vertical", 0, 3, 3, 3),
    Sketcher.Constraint("Diameter", 0, Q("3 mm")),
    Sketcher.Constraint("DistanceX", -1, 1, 0, 3, Q("13 mm")),
    Sketcher.Constraint("DistanceY", 0, 3, -1, 1, Q("95 mm")),
    Sketcher.Constraint("DistanceX", -1, 1, 1, 3, Q("62 mm")),
    Sketcher.Constraint("DistanceY", 2, 3, -1, 1, Q("37 mm")),
])
doc.recompute()
hole2 = body.newObject("PartDesign::Hole", "Hole001")
hole2.Profile = sketch9
hole2.ThreadType = "None"
hole2.Diameter = 3
hole2.DepthType = "Dimension"
hole2.Depth = 5
hole2.DrillPoint = "Angled"
hole2.DrillPointAngle = 118
hole2.Reversed = True

sketch10 = body.newObject("Sketcher::SketchObject", "Sketch009")
sketch10.AttachmentSupport = (doc.getObject("XY_Plane"), [""])
sketch10.MapMode = "FlatFace"
sketch10.AttachmentOffset = App.Placement(App.Vector(0, 0, -1.5), App.Rotation())
sketch10.addGeometry([
    Part.Circle(App.Vector(37, 1, 0), App.Vector(0, 0, 1), 1),
    Part.Circle(App.Vector(11, 24, 0), App.Vector(0, 0, 1), 1),
    Part.Circle(App.Vector(63, 24, 0), App.Vector(0, 0, 1), 1),
], False)
sketch10.addConstraint([
    Sketcher.Constraint("Equal", 0, 1),
    Sketcher.Constraint("Equal", 1, 2),
    Sketcher.Constraint("Horizontal", 1, 3, 2, 3),
    Sketcher.Constraint("Diameter", 0, Q("2 mm")),
    Sketcher.Constraint("DistanceX", -1, 1, 0, 3, Q("37 mm")),
    Sketcher.Constraint("DistanceY", -1, 1, 0, 3, Q("1 mm")),
    Sketcher.Constraint("DistanceX", -1, 1, 1, 3, Q("11 mm")),
    Sketcher.Constraint("DistanceY", -1, 1, 1, 3, Q("24 mm")),
    Sketcher.Constraint("DistanceX", -1, 1, 2, 3, Q("63 mm")),
])
doc.recompute()
hole3 = body.newObject("PartDesign::Hole", "Hole002")
hole3.Profile = sketch10
hole3.ThreadType = "None"
hole3.Diameter = 2
hole3.DepthType = "Dimension"
hole3.Depth = 5
hole3.DrillPoint = "Angled"
hole3.DrillPointAngle = 118

sketch11 = body.newObject("Sketcher::SketchObject", "Sketch010")
sketch11.AttachmentSupport = (doc.getObject("XZ_Plane"), [""])
sketch11.MapMode = "FlatFace"
sketch11.AttachmentOffset = App.Placement(App.Vector(0, 0, -28), App.Rotation())
sketch11.addGeometry([
    Part.LineSegment(App.Vector(170, -8, 0), App.Vector(170, -104, 0)),
    Part.ArcOfCircle(Part.Circle(App.Vector(164, -104, 0), App.Vector(0, 0, 1), 6), math.radians(-90), math.radians(0)),
    Part.LineSegment(App.Vector(164, -110, 0), App.Vector(8, -110, 0)),
    Part.ArcOfCircle(Part.Circle(App.Vector(8, -104, 0), App.Vector(0, 0, 1), 6), math.radians(180), math.radians(270)),
    Part.LineSegment(App.Vector(2, -104, 0), App.Vector(2, -8, 0)),
    Part.ArcOfCircle(Part.Circle(App.Vector(8, -8, 0), App.Vector(0, 0, 1), 6), math.radians(90), math.radians(180)),
    Part.LineSegment(App.Vector(8, -2, 0), App.Vector(164, -2, 0)),
    Part.ArcOfCircle(Part.Circle(App.Vector(164, -8, 0), App.Vector(0, 0, 1), 6), math.radians(0), math.radians(90)),
], False)
sketch11.addConstraint([
    Sketcher.Constraint("Tangent", 0, 2, 1, 2),
    Sketcher.Constraint("Tangent", 1, 1, 2, 1),
    Sketcher.Constraint("Tangent", 2, 2, 3, 2),
    Sketcher.Constraint("Tangent", 3, 1, 4, 1),
    Sketcher.Constraint("Tangent", 4, 2, 5, 2),
    Sketcher.Constraint("Tangent", 5, 1, 6, 1),
    Sketcher.Constraint("Tangent", 6, 2, 7, 2),
    Sketcher.Constraint("Tangent", 7, 1, 0, 1),
    Sketcher.Constraint("Vertical", 0),
    Sketcher.Constraint("Horizontal", 2),
    Sketcher.Constraint("Vertical", 4),
    Sketcher.Constraint("Horizontal", 6),
    Sketcher.Constraint("Equal", 1, 3),
    Sketcher.Constraint("Equal", 3, 5),
    Sketcher.Constraint("Equal", 5, 7),
    Sketcher.Constraint("Radius", 1, Q("6.5 mm")),
    Sketcher.Constraint("DistanceX", 2, 2, 2, 1, Q("156 mm")),
    Sketcher.Constraint("DistanceY", 0, 2, 0, 1, Q("96 mm")),
    Sketcher.Constraint("DistanceX", -1, 1, 1, 3, Q("164 mm")),
    Sketcher.Constraint("DistanceY", 1, 3, -1, 1, Q("104 mm")),
])
pocket3 = body.newObject("PartDesign::Pocket", "Pocket002")
pocket3.Profile = sketch11
pocket3.Length = 1.5
pocket3.Reversed = True
doc.recompute()

fillet = body.newObject("PartDesign::Fillet", "Fillet")
fillet.Base = (pocket3, edges_at(pocket3, [
    (11.5, 6, -2.25),
    (11.5, 22, -2.25),
    (62.5, 22, -2.25),
    (62.5, 6, -2.25),
]))
fillet.Radius = 3

sketch12 = body.newObject("Sketcher::SketchObject", "Sketch011")
sketch12.AttachmentSupport = (doc.getObject("XZ_Plane"), [""])
sketch12.MapMode = "FlatFace"
add_polygon(sketch12, [(104, -109), (104, -3), (109, -3), (109, -109)])
add_polygon(sketch12, [(134, -109), (134, -3), (139, -3), (139, -109)])
sketch12.addConstraint([
    Sketcher.Constraint("Vertical", 0),
    Sketcher.Constraint("Horizontal", 1),
    Sketcher.Constraint("Vertical", 2),
    Sketcher.Constraint("Horizontal", 3),
    Sketcher.Constraint("Vertical", 4),
    Sketcher.Constraint("Horizontal", 5),
    Sketcher.Constraint("Vertical", 6),
    Sketcher.Constraint("Horizontal", 7),
    Sketcher.Constraint("Horizontal", 1, 2, 4, 2),
    Sketcher.Constraint("Horizontal", 3, 2, 6, 2),
    Sketcher.Constraint("Equal", 3, 5),
    Sketcher.Constraint("DistanceX", 1, 1, 1, 2, Q("5 mm")),
    Sketcher.Constraint("DistanceY", 0, 1, 0, 2, Q("106 mm")),
    Sketcher.Constraint("DistanceX", -1, 1, 0, 2, Q("104 mm")),
    Sketcher.Constraint("DistanceY", 0, 2, -1, 1, Q("3 mm")),
    Sketcher.Constraint("DistanceX", -1, 1, 4, 2, Q("134 mm")),
])
pad6 = body.newObject("PartDesign::Pad", "Pad005")
pad6.Profile = sketch12
pad6.Length = 3
pad6.Reversed = True

sketch13 = body.newObject("Sketcher::SketchObject", "Sketch012")
sketch13.AttachmentSupport = (doc.getObject("YZ_Plane"), [""])
sketch13.MapMode = "FlatFace"
sketch13.AttachmentOffset = App.Placement(App.Vector(0, 0, 172), App.Rotation())
add_polygon(sketch13, [(24, -20), (2, -20), (2, -42), (24, -42)])
sketch13.addConstraint([
    Sketcher.Constraint("Horizontal", 0),
    Sketcher.Constraint("Vertical", 1),
    Sketcher.Constraint("Horizontal", 2),
    Sketcher.Constraint("Vertical", 3),
    Sketcher.Constraint("Equal", 2, 1),
    Sketcher.Constraint("DistanceX", 0, 2, 0, 1, Q("22 mm")),
    Sketcher.Constraint("DistanceX", -1, 1, 0, 2, Q("2 mm")),
    Sketcher.Constraint("DistanceY", 0, 2, -1, 1, Q("20 mm")),
])
pocket4 = body.newObject("PartDesign::Pocket", "Pocket003")
pocket4.Profile = sketch13
pocket4.Length = 1.5

sketch14 = body.newObject("Sketcher::SketchObject", "Sketch013")
sketch14.AttachmentSupport = (doc.getObject("YZ_Plane"), [""])
sketch14.MapMode = "FlatFace"
sketch14.AttachmentOffset = App.Placement(App.Vector(0, 0, 170.5), App.Rotation())
sketch14.addGeometry(Part.Circle(App.Vector(13, -31, 0), App.Vector(0, 0, 1), 7), False)
sketch14.addConstraint([
    Sketcher.Constraint("Diameter", 0, Q("14 mm")),
    Sketcher.Constraint("DistanceX", -1, 1, 0, 3, Q("13 mm")),
    Sketcher.Constraint("DistanceY", 0, 3, -1, 1, Q("31 mm")),
])
pocket5 = body.newObject("PartDesign::Pocket", "Pocket004")
pocket5.Profile = sketch14
pocket5.Length = 1.5

sketch15 = body.newObject("Sketcher::SketchObject", "Sketch014")
sketch15.AttachmentSupport = (doc.getObject("YZ_Plane"), [""])
sketch15.MapMode = "FlatFace"
sketch15.AttachmentOffset = App.Placement(App.Vector(0, 0, 170.5), App.Rotation())
sketch15.addGeometry([
    Part.Circle(App.Vector(21.5, -22.5, 0), App.Vector(0, 0, 1), 1),
    Part.Circle(App.Vector(21.5, -39.5, 0), App.Vector(0, 0, 1), 1),
    Part.Circle(App.Vector(4.5, -39.5, 0), App.Vector(0, 0, 1), 1),
    Part.Circle(App.Vector(4.5, -22.5, 0), App.Vector(0, 0, 1), 1),
], False)
sketch15.addConstraint([
    Sketcher.Constraint("Equal", 0, 1),
    Sketcher.Constraint("Equal", 1, 2),
    Sketcher.Constraint("Equal", 2, 3),
    Sketcher.Constraint("Horizontal", 1, 3, 2, 3),
    Sketcher.Constraint("Horizontal", 0, 3, 3, 3),
    Sketcher.Constraint("Vertical", 0, 3, 1, 3),
    Sketcher.Constraint("Vertical", 2, 3, 3, 3),
    Sketcher.Constraint("Diameter", 0, Q("2 mm")),
    Sketcher.Constraint("DistanceY", 1, 3, 0, 3, Q("17 mm")),
    Sketcher.Constraint("DistanceX", 2, 3, 1, 3, Q("17 mm")),
    Sketcher.Constraint("DistanceX", -1, 1, 0, 3, Q("21.5 mm")),
    Sketcher.Constraint("DistanceY", 0, 3, -1, 1, Q("22.5 mm")),
])
doc.recompute()
hole4 = body.newObject("PartDesign::Hole", "Hole003")
hole4.Profile = sketch15
hole4.ThreadType = "None"
hole4.Diameter = 2
hole4.DepthType = "Dimension"
hole4.Depth = 1.5
hole4.DrillPoint = "Angled"
hole4.DrillPointAngle = 118

doc.recompute()
